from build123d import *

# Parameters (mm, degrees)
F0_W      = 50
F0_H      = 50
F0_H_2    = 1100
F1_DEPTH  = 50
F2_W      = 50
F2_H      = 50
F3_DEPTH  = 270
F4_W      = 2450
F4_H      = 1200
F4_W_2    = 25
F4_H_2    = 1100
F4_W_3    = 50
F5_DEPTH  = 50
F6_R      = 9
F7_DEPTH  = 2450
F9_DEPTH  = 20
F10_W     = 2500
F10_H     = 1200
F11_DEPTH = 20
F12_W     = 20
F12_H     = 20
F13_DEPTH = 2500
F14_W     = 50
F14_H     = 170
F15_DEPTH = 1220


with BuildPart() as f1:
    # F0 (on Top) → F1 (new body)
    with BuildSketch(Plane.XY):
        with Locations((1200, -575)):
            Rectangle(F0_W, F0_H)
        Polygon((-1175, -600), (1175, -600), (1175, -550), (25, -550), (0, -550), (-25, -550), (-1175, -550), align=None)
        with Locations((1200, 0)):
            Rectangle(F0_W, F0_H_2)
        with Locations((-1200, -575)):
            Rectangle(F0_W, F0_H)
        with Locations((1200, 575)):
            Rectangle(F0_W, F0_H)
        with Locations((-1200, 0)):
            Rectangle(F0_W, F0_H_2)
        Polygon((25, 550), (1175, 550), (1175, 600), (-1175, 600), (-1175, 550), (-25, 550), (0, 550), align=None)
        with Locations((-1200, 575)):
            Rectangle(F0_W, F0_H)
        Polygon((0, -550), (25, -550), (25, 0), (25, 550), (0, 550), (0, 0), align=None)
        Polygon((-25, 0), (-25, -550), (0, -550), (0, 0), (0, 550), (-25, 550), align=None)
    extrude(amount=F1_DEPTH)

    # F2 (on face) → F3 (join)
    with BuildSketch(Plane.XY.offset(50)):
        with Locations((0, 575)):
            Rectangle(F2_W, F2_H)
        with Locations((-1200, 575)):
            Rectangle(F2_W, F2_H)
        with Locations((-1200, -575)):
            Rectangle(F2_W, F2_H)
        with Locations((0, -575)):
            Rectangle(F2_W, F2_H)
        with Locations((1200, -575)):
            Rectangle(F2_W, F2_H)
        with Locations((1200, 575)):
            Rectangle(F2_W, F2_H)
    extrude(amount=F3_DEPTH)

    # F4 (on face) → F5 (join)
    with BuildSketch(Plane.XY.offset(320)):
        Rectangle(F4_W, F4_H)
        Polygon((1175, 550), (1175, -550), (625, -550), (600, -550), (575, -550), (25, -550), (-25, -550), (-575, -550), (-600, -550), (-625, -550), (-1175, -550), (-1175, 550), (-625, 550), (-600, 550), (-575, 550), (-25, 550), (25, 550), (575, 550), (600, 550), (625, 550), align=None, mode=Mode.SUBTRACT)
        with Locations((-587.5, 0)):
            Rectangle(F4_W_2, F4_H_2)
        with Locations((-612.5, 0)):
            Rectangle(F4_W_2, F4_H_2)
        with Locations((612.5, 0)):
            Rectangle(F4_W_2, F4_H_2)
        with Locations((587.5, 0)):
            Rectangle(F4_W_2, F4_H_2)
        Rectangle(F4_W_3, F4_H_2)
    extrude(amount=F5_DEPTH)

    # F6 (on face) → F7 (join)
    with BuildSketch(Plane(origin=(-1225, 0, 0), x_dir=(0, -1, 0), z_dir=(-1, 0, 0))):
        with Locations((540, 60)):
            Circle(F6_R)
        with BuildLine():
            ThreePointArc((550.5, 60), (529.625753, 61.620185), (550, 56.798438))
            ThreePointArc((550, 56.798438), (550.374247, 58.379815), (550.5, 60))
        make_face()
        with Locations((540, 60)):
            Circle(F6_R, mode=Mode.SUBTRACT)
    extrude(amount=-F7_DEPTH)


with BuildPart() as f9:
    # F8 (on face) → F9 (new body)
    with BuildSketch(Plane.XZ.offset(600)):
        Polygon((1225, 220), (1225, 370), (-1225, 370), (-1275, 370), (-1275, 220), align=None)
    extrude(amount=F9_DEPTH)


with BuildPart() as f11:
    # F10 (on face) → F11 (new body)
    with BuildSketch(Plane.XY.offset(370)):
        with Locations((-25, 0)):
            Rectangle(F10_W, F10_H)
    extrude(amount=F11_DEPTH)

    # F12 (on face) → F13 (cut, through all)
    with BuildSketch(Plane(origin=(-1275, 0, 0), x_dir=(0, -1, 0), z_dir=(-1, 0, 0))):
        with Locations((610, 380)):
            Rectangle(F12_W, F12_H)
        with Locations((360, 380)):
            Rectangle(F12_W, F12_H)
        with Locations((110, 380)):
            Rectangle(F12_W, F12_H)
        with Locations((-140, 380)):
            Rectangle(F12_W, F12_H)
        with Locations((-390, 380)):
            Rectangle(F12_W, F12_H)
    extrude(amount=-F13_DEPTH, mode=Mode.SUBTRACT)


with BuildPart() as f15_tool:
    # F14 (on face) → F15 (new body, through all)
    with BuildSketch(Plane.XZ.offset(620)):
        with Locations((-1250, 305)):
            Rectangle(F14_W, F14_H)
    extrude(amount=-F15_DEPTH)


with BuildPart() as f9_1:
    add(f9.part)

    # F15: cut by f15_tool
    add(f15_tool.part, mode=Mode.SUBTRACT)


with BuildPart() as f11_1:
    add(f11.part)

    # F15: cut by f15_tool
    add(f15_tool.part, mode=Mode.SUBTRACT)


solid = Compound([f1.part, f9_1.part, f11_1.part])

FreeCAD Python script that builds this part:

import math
import FreeCAD as App
import Part
import Sketcher

V = App.Vector
Q = App.Units.Quantity


def add_polygon(sketch, points):
    """Adds a closed chain of lines whose ends are joined by coincident constraints."""
    first, n = sketch.GeometryCount, len(points)
    for a, b in zip(points, points[1:] + points[:1]):
        sketch.addGeometry(Part.LineSegment(App.Vector(*a, 0), App.Vector(*b, 0)), False)
    for i in range(n):
        sketch.addConstraint(Sketcher.Constraint("Coincident", first + i, 2, first + (i + 1) % n, 1))

doc = App.newDocument("Part")
params = doc.addObject("Spreadsheet::Sheet", "Params")
for row, (alias, value) in enumerate([
    ("sketch1_width", "2450 mm"),
    ("sketch1_width2", "1150 mm"),
    ("sketch1_height", "1200 mm"),
    ("sketch1_height2", "1100 mm"),
    ("pad1_length", "50 mm"),
    ("sketch2_width", "50 mm"),
    ("pad2_length", "270 mm"),
    ("sketch3_width", "2450 mm"),
    ("sketch3_width2", "550 mm"),
    ("sketch3_height", "1200 mm"),
    ("sketch3_height2", "1100 mm"),
    ("pad3_length", "50 mm"),
    ("sketch4_diameter", "18 mm"),
    ("sketch4_radius", "10.5 mm"),
    ("pad4_length", "2450 mm"),
    ("sketch5_width", "2500 mm"),
    ("sketch5_height", "150 mm"),
    ("pad5_length", "20 mm"),
    ("sketch6_width", "2500 mm"),
    ("sketch6_height", "1200 mm"),
    ("pad6_length", "20 mm"),
    ("sketch7_width", "20 mm"),
    ("sketch8_width", "50 mm"),
    ("sketch8_height", "170 mm"),
    ("pad7_length", "1220 mm"),
], start=1):
    params.set(f"A{row}", alias)
    params.set(f"B{row}", "=" + value)
    params.setAlias(f"B{row}", alias)

body = doc.addObject("PartDesign::Body", "Body")

sketch1 = doc.addObject("Sketcher::SketchObject", "Sketch")
body.addObject(sketch1)
sketch1.AttachmentSupport = (doc.XY_Plane, [""])
sketch1.MapMode = "FlatFace"
add_polygon(sketch1, [(1225, 600), (-1225, 600), (-1225, -600), (1225, -600)])
add_polygon(sketch1, [(-1175, -550), (-1175, 550), (-25, 550), (-25, -550)])
add_polygon(sketch1, [(25, 550), (1175, 550), (1175, -550), (25, -550)])
sketch1.addConstraint([
    Sketcher.Constraint("Horizontal", 0),
    Sketcher.Constraint("Vertical", 1),
    Sketcher.Constraint("Horizontal", 2),
    Sketcher.Constraint("Vertical", 3),
    Sketcher.Constraint("Vertical", 4),
    Sketcher.Constraint("Horizontal", 5),
    Sketcher.Constraint("Vertical", 6),
    Sketcher.Constraint("Horizontal", 7),
    Sketcher.Constraint("Horizontal", 8),
    Sketcher.Constraint("Vertical", 9),
    Sketcher.Constraint("Horizontal", 10),
    Sketcher.Constraint("Vertical", 11),
    Sketcher.Constraint("Symmetric", 0, 2, 2, 2, -1, 1),
    Sketcher.Constraint("Symmetric", 7, 2, 8, 2, -1, 1),
    Sketcher.Constraint("Symmetric", 5, 2, 10, 2, -1, 1),
    Sketcher.Constraint("Horizontal", 5, 2, 8, 2),
    Sketcher.Constraint("DistanceX", 0, 2, 0, 1, Q("2450 mm")),
    Sketcher.Constraint("DistanceX", 5, 1, 5, 2, Q("1150 mm")),
    Sketcher.Constraint("DistanceY", 1, 2, 1, 1, Q("1200 mm")),
    Sketcher.Constraint("DistanceY", 4, 1, 4, 2, Q("1100 mm")),
    Sketcher.Constraint("DistanceX", 4, 2, -1, 1, Q("1175 mm")),
])
sketch1.setExpression("Constraints[28]", "Params.sketch1_width")
sketch1.setExpression("Constraints[29]", "Params.sketch1_width2")
sketch1.setExpression("Constraints[30]", "Params.sketch1_height")
sketch1.setExpression("Constraints[31]", "Params.sketch1_height2")
pad1 = doc.addObject("PartDesign::Pad", "Pad")
body.addObject(pad1)
pad1.Profile = sketch1
pad1.setExpression("Length", "Params.pad1_length")

sketch2 = doc.addObject("Sketcher::SketchObject", "Sketch001")
body.addObject(sketch2)
sketch2.AttachmentSupport = (doc.XY_Plane, [""])
sketch2.MapMode = "FlatFace"
sketch2.AttachmentOffset = App.Placement(V(0, 0, 50), App.Rotation())
add_polygon(sketch2, [(-25, 600), (-25, 550), (25, 550), (25, 600)])
add_polygon(sketch2, [(-1225, 600), (-1225, 550), (-1175, 550), (-1175, 600)])
add_polygon(sketch2, [(-1225, -550), (-1225, -600), (-1175, -600), (-1175, -550)])
add_polygon(sketch2, [(-25, -550), (-25, -600), (25, -600), (25, -550)])
add_polygon(sketch2, [(1175, -550), (1175, -600), (1225, -600), (1225, -550)])
add_polygon(sketch2, [(1175, 600), (1175, 550), (1225, 550), (1225, 600)])
sketch2.addConstraint([
    Sketcher.Constraint("Vertical", 0),
    Sketcher.Constraint("Horizontal", 1),
    Sketcher.Constraint("Vertical", 2),
    Sketcher.Constraint("Horizontal", 3),
    Sketcher.Constraint("Vertical", 4),
    Sketcher.Constraint("Horizontal", 5),
    Sketcher.Constraint("Vertical", 6),
    Sketcher.Constraint("Horizontal", 7),
    Sketcher.Constraint("Vertical", 8),
    Sketcher.Constraint("Horizontal", 9),
    Sketcher.Constraint("Vertical", 10),
    Sketcher.Constraint("Horizontal", 11),
    Sketcher.Constraint("Vertical", 12),
    Sketcher.Constraint("Horizontal", 13),
    Sketcher.Constraint("Vertical", 14),
    Sketcher.Constraint("Horizontal", 15),
    Sketcher.Constraint("Vertical", 16),
    Sketcher.Constraint("Horizontal", 17),
    Sketcher.Constraint("Vertical", 18),
    Sketcher.Constraint("Horizontal", 19),
    Sketcher.Constraint("Vertical", 20),
    Sketcher.Constraint("Horizontal", 21),
    Sketcher.Constraint("Vertical", 22),
    Sketcher.Constraint("Horizontal", 23),
    Sketcher.Constraint("Symmetric", 2, 2, 12, 2, -1, 1),
    Sketcher.Constraint("Symmetric", 0, 2, 14, 2, -1, 1),
    Sketcher.Constraint("Symmetric", 6, 2, 16, 2, -1, 1),
    Sketcher.Constraint("Symmetric", 4, 2, 18, 2, -1, 1),
    Sketcher.Constraint("Symmetric", 10, 2, 20, 2, -1, 1),
    Sketcher.Constraint("Symmetric", 8, 2, 22, 2, -1, 1),
    Sketcher.Constraint("Symmetric", 9, 2, 16, 2, -2),
    Sketcher.Constraint("Symmetric", 11, 2, 18, 2, -2),
    Sketcher.Constraint("Horizontal", 1, 2, 4, 2),
    Sketcher.Constraint("Horizontal", 3, 2, 6, 2),
    Sketcher.Constraint("Vertical", 3, 2, 12, 2),
    Sketcher.Constraint("Equal", 3, 5),
    Sketcher.Constraint("Equal", 23, 0),
    Sketcher.Constraint("DistanceX", 1, 1, 1, 2, Q("50 mm")),
    Sketcher.Constraint("DistanceY", -1, 1, 0, 2, Q("550 mm")),
    Sketcher.Constraint("DistanceX", 4, 2, -1, 1, Q("1225 mm")),
])
sketch2.setExpression("Constraints[61]", "Params.sketch2_width")
pad2 = doc.addObject("PartDesign::Pad", "Pad001")
body.addObject(pad2)
pad2.Profile = sketch2
pad2.setExpression("Length", "Params.pad2_length")

sketch3 = doc.addObject("Sketcher::SketchObject", "Sketch002")
body.addObject(sketch3)
sketch3.AttachmentSupport = (doc.XY_Plane, [""])
sketch3.MapMode = "FlatFace"
sketch3.AttachmentOffset = App.Placement(V(0, 0, 320), App.Rotation())
add_polygon(sketch3, [(-1225, 600), (-1225, -600), (1225, -600), (1225, 600)])
add_polygon(sketch3, [(-1175, 550), (-625, 550), (-625, -550), (-1175, -550)])
add_polygon(sketch3, [(-575, 550), (-25, 550), (-25, -550), (-575, -550)])
add_polygon(sketch3, [(25, 550), (575, 550), (575, -550), (25, -550)])
add_polygon(sketch3, [(625, 550), (1175, 550), (1175, -550), (625, -550)])
sketch3.addConstraint([
    Sketcher.Constraint("Vertical", 0),
    Sketcher.Constraint("Horizontal", 1),
    Sketcher.Constraint("Vertical", 2),
    Sketcher.Constraint("Horizontal", 3),
    Sketcher.Constraint("Horizontal", 4),
    Sketcher.Constraint("Vertical", 5),
    Sketcher.Constraint("Horizontal", 6),
    Sketcher.Constraint("Vertical", 7),
    Sketcher.Constraint("Horizontal", 8),
    Sketcher.Constraint("Vertical", 9),
    Sketcher.Constraint("Horizontal", 10),
    Sketcher.Constraint("Vertical", 11),
    Sketcher.Constraint("Horizontal", 12),
    Sketcher.Constraint("Vertical", 13),
    Sketcher.Constraint("Horizontal", 14),
    Sketcher.Constraint("Vertical", 15),
    Sketcher.Constraint("Horizontal", 16),
    Sketcher.Constraint("Vertical", 17),
    Sketcher.Constraint("Horizontal", 18),
    Sketcher.Constraint("Vertical", 19),
    Sketcher.Constraint("Symmetric", 0, 2, 2, 2, -1, 1),
    Sketcher.Constraint("Symmetric", 10, 2, 12, 2, -1, 1),
    Sketcher.Constraint("Symmetric", 8, 2, 14, 2, -1, 1),
    Sketcher.Constraint("Symmetric", 6, 2, 16, 2, -1, 1),
    Sketcher.Constraint("Symmetric", 4, 2, 18, 2, -1, 1),
    Sketcher.Constraint("Horizontal", 7, 2, 8, 2),
    Sketcher.Constraint("Horizontal", 6, 2, 9, 2),
    Sketcher.Constraint("Horizontal", 11, 2, 12, 2),
    Sketcher.Constraint("Equal", 6, 8),
    Sketcher.Constraint("DistanceX", 1, 1, 1, 2, Q("2450 mm")),
    Sketcher.Constraint("DistanceX", 4, 1, 4, 2, Q("550 mm")),
    Sketcher.Constraint("DistanceY", 0, 2, 0, 1, Q("1200 mm")),
    Sketcher.Constraint("DistanceY", 5, 2, 5, 1, Q("1100 mm")),
    Sketcher.Constraint("DistanceX", 4, 2, -1, 1, Q("625 mm")),
    Sketcher.Constraint("DistanceX", 8, 2, -1, 1, Q("25 mm")),
])
sketch3.setExpression("Constraints[49]", "Params.sketch3_width")
sketch3.setExpression("Constraints[50]", "Params.sketch3_width2")
sketch3.setExpression("Constraints[51]", "Params.sketch3_height")
sketch3.setExpression("Constraints[52]", "Params.sketch3_height2")
pad3 = doc.addObject("PartDesign::Pad", "Pad002")
body.addObject(pad3)
pad3.Profile = sketch3
pad3.setExpression("Length", "Params.pad3_length")

sketch4 = doc.addObject("Sketcher::SketchObject", "Sketch003")
body.addObject(sketch4)
sketch4.AttachmentSupport = (doc.YZ_Plane, [""])
sketch4.MapMode = "FlatFace"
sketch4.AttachmentOffset = App.Placement(V(0, 0, -1225), App.Rotation())
sketch4.addGeometry([
    Part.ArcOfCircle(Part.Circle(V(-540, 60, 0), V(0, 0, 1), 10.5), math.radians(-162), math.radians(180)),
    Part.ArcOfCircle(Part.Circle(V(-540, 60, 0), V(0, 0, 1), 10.5), math.radians(180), math.radians(197.75)),
    Part.Circle(V(-540, 60, 0), V(0, 0, 1), 9),
], False)
sketch4.addConstraint([
    Sketcher.Constraint("Tangent", 0, 1, 1, 2),
    Sketcher.Constraint("Coincident", 1, 1, 0, 2),
    Sketcher.Constraint("Coincident", 2, 3, 0, 3),
    Sketcher.Constraint("Horizontal", 2, 3, 1, 1),
    Sketcher.Constraint("Diameter", 2, Q("18 mm")),
    Sketcher.Constraint("Radius", 0, Q("10.5 mm")),
    Sketcher.Constraint("DistanceX", 0, 3, -1, 1, Q("540 mm")),
    Sketcher.Constraint("DistanceY", -1, 1, 0, 3, Q("60 mm")),
    Sketcher.Constraint("DistanceX", 0, 1, -1, 1, Q("550 mm")),
])
sketch4.setExpression("Constraints[4]", "Params.sketch4_diameter")
sketch4.setExpression("Constraints[5]", "Params.sketch4_radius")
pad4 = doc.addObject("PartDesign::Pad", "Pad003")
body.addObject(pad4)
pad4.Profile = sketch4
pad4.setExpression("Length", "Params.pad4_length")
body2 = doc.addObject("PartDesign::Body", "Body001")

sketch5 = doc.addObject("Sketcher::SketchObject", "Sketch004")
body2.addObject(sketch5)
sketch5.AttachmentSupport = (doc.getObject("XZ_Plane001"), [""])
sketch5.MapMode = "FlatFace"
sketch5.AttachmentOffset = App.Placement(V(0, 0, 600), App.Rotation())
add_polygon(sketch5, [(1225, 220), (1225, 370), (-1275, 370), (-1275, 220)])
sketch5.addConstraint([
    Sketcher.Constraint("Vertical", 0),
    Sketcher.Constraint("Horizontal", 1),
    Sketcher.Constraint("Vertical", 2),
    Sketcher.Constraint("Horizontal", 3),
    Sketcher.Constraint("DistanceX", 1, 2, 1, 1, Q("2500 mm")),
    Sketcher.Constraint("DistanceY", 0, 1, 0, 2, Q("150 mm")),
    Sketcher.Constraint("DistanceX", -1, 1, 0, 2, Q("1225 mm")),
    Sketcher.Constraint("DistanceY", -1, 1, 0, 2, Q("370 mm")),
])
sketch5.setExpression("Constraints[8]", "Params.sketch5_width")
sketch5.setExpression("Constraints[9]", "Params.sketch5_height")
pad5 = doc.addObject("PartDesign::Pad", "Pad004")
body2.addObject(pad5)
pad5.Profile = sketch5
pad5.setExpression("Length", "Params.pad5_length")
body3 = doc.addObject("PartDesign::Body", "Body002")
body3.AllowCompound = True

sketch6 = doc.addObject("Sketcher::SketchObject", "Sketch005")
body3.addObject(sketch6)
sketch6.AttachmentSupport = (doc.getObject("XY_Plane002"), [""])
sketch6.MapMode = "FlatFace"
sketch6.AttachmentOffset = App.Placement(V(0, 0, 370), App.Rotation())
add_polygon(sketch6, [(-1275, 600), (-1275, -600), (1225, -600), (1225, 600)])
sketch6.addConstraint([
    Sketcher.Constraint("Vertical", 0),
    Sketcher.Constraint("Horizontal", 1),
    Sketcher.Constraint("Vertical", 2),
    Sketcher.Constraint("Horizontal", 3),
    Sketcher.Constraint("DistanceX", 1, 1, 1, 2, Q("2500 mm")),
    Sketcher.Constraint("DistanceY", 0, 2, 0, 1, Q("1200 mm")),
    Sketcher.Constraint("DistanceX", 0, 2, -1, 1, Q("1275 mm")),
    Sketcher.Constraint("DistanceY", 0, 2, -1, 1, Q("600 mm")),
])
sketch6.setExpression("Constraints[8]", "Params.sketch6_width")
sketch6.setExpression("Constraints[9]", "Params.sketch6_height")
pad6 = doc.addObject("PartDesign::Pad", "Pad005")
body3.addObject(pad6)
pad6.Profile = sketch6
pad6.setExpression("Length", "Params.pad6_length")

sketch7 = doc.addObject("Sketcher::SketchObject", "Sketch006")
body3.addObject(sketch7)
sketch7.AttachmentSupport = (doc.getObject("YZ_Plane002"), [""])
sketch7.MapMode = "FlatFace"
sketch7.AttachmentOffset = App.Placement(V(0, 0, -1275), App.Rotation())
add_polygon(sketch7, [(-600, 390), (-600, 370), (-620, 370), (-620, 390)])
add_polygon(sketch7, [(-350, 390), (-350, 370), (-370, 370), (-370, 390)])
add_polygon(sketch7, [(-100, 390), (-100, 370), (-120, 370), (-120, 390)])
add_polygon(sketch7, [(150, 390), (150, 370), (130, 370), (130, 390)])
add_polygon(sketch7, [(400, 390), (400, 370), (380, 370), (380, 390)])
sketch7.addConstraint([
    Sketcher.Constraint("Vertical", 0),
    Sketcher.Constraint("Horizontal", 1),
    Sketcher.Constraint("Vertical", 2),
    Sketcher.Constraint("Horizontal", 3),
    Sketcher.Constraint("Vertical", 4),
    Sketcher.Constraint("Horizontal", 5),
    Sketcher.Constraint("Vertical", 6),
    Sketcher.Constraint("Horizontal", 7),
    Sketcher.Constraint("Vertical", 8),
    Sketcher.Constraint("Horizontal", 9),
    Sketcher.Constraint("Vertical", 10),
    Sketcher.Constraint("Horizontal", 11),
    Sketcher.Constraint("Vertical", 12),
    Sketcher.Constraint("Horizontal", 13),
    Sketcher.Constraint("Vertical", 14),
    Sketcher.Constraint("Horizontal", 15),
    Sketcher.Constraint("Vertical", 16),
    Sketcher.Constraint("Horizontal", 17),
    Sketcher.Constraint("Vertical", 18),
    Sketcher.Constraint("Horizontal", 19),
    Sketcher.Constraint("Horizontal", 1, 2, 4, 2),
    Sketcher.Constraint("Horizontal", 3, 2, 6, 2),
    Sketcher.Constraint("Horizontal", 5, 2, 8, 2),
    Sketcher.Constraint("Horizontal", 7, 2, 10, 2),
    Sketcher.Constraint("Horizontal", 9, 2, 12, 2),
    Sketcher.Constraint("Horizontal", 11, 2, 14, 2),
    Sketcher.Constraint("Horizontal", 13, 2, 16, 2),
    Sketcher.Constraint("Horizontal", 15, 2, 18, 2),
    Sketcher.Constraint("Equal", 3, 5),
    Sketcher.Constraint("Equal", 7, 9),
    Sketcher.Constraint("Equal", 11, 13),
    Sketcher.Constraint("Equal", 15, 17),
    Sketcher.Constraint("Equal", 19, 0),
    Sketcher.Constraint("DistanceX", 1, 2, 1, 1, Q("20 mm")),
    Sketcher.Constraint("DistanceX", 0, 2, -1, 1, Q("600 mm")),
    Sketcher.Constraint("DistanceY", -1, 1, 0, 2, Q("370 mm")),
    Sketcher.Constraint("DistanceX", 4, 2, -1, 1, Q("350 mm")),
    Sketcher.Constraint("DistanceX", 8, 2, -1, 1, Q("100 mm")),
    Sketcher.Constraint("DistanceX", -1, 1, 12, 2, Q("150 mm")),
    Sketcher.Constraint("DistanceX", -1, 1, 16, 2, Q("400 mm")),
])
sketch7.setExpression("Constraints[53]", "Params.sketch7_width")
pocket1 = doc.addObject("PartDesign::Pocket", "Pocket")
body3.addObject(pocket1)
pocket1.Profile = sketch7
pocket1.Type = "ThroughAll"
pocket1.Reversed = True
body4 = doc.addObject("PartDesign::Body", "Body003")

sketch8 = doc.addObject("Sketcher::SketchObject", "Sketch007")
body4.addObject(sketch8)
sketch8.AttachmentSupport = (doc.getObject("XZ_Plane003"), [""])
sketch8.MapMode = "FlatFace"
sketch8.AttachmentOffset = App.Placement(V(0, 0, 620), App.Rotation())
add_polygon(sketch8, [(-1275, 390), (-1275, 220), (-1225, 220), (-1225, 390)])
sketch8.addConstraint([
    Sketcher.Constraint("Vertical", 0),
    Sketcher.Constraint("Horizontal", 1),
    Sketcher.Constraint("Vertical", 2),
    Sketcher.Constraint("Horizontal", 3),
    Sketcher.Constraint("DistanceX", 1, 1, 1, 2, Q("50 mm")),
    Sketcher.Constraint("DistanceY", 0, 2, 0, 1, Q("170 mm")),
    Sketcher.Constraint("DistanceX", 0, 2, -1, 1, Q("1275 mm")),
    Sketcher.Constraint("DistanceY", -1, 1, 0, 2, Q("220 mm")),
])
sketch8.setExpression("Constraints[8]", "Params.sketch8_width")
sketch8.setExpression("Constraints[9]", "Params.sketch8_height")
pad7 = doc.addObject("PartDesign::Pad", "Pad006")
body4.addObject(pad7)
pad7.Profile = sketch8
pad7.setExpression("Length", "Params.pad7_length")
pad7.Reversed = True
doc.recompute()

body5 = doc.addObject("PartDesign::Body", "Body004")
body5.BaseFeature = body4
boolean = doc.addObject("PartDesign::Boolean", "Boolean")
body2.addObject(boolean)
boolean.Type = "Cut"
boolean.addObjects([body5])
doc.recompute()
body3.AllowCompound = True
doc.recompute()

boolean2 = doc.addObject("PartDesign::Boolean", "Boolean001")
body3.addObject(boolean2)
boolean2.Type = "Cut"
boolean2.addObjects([body4])

doc.recompute()
